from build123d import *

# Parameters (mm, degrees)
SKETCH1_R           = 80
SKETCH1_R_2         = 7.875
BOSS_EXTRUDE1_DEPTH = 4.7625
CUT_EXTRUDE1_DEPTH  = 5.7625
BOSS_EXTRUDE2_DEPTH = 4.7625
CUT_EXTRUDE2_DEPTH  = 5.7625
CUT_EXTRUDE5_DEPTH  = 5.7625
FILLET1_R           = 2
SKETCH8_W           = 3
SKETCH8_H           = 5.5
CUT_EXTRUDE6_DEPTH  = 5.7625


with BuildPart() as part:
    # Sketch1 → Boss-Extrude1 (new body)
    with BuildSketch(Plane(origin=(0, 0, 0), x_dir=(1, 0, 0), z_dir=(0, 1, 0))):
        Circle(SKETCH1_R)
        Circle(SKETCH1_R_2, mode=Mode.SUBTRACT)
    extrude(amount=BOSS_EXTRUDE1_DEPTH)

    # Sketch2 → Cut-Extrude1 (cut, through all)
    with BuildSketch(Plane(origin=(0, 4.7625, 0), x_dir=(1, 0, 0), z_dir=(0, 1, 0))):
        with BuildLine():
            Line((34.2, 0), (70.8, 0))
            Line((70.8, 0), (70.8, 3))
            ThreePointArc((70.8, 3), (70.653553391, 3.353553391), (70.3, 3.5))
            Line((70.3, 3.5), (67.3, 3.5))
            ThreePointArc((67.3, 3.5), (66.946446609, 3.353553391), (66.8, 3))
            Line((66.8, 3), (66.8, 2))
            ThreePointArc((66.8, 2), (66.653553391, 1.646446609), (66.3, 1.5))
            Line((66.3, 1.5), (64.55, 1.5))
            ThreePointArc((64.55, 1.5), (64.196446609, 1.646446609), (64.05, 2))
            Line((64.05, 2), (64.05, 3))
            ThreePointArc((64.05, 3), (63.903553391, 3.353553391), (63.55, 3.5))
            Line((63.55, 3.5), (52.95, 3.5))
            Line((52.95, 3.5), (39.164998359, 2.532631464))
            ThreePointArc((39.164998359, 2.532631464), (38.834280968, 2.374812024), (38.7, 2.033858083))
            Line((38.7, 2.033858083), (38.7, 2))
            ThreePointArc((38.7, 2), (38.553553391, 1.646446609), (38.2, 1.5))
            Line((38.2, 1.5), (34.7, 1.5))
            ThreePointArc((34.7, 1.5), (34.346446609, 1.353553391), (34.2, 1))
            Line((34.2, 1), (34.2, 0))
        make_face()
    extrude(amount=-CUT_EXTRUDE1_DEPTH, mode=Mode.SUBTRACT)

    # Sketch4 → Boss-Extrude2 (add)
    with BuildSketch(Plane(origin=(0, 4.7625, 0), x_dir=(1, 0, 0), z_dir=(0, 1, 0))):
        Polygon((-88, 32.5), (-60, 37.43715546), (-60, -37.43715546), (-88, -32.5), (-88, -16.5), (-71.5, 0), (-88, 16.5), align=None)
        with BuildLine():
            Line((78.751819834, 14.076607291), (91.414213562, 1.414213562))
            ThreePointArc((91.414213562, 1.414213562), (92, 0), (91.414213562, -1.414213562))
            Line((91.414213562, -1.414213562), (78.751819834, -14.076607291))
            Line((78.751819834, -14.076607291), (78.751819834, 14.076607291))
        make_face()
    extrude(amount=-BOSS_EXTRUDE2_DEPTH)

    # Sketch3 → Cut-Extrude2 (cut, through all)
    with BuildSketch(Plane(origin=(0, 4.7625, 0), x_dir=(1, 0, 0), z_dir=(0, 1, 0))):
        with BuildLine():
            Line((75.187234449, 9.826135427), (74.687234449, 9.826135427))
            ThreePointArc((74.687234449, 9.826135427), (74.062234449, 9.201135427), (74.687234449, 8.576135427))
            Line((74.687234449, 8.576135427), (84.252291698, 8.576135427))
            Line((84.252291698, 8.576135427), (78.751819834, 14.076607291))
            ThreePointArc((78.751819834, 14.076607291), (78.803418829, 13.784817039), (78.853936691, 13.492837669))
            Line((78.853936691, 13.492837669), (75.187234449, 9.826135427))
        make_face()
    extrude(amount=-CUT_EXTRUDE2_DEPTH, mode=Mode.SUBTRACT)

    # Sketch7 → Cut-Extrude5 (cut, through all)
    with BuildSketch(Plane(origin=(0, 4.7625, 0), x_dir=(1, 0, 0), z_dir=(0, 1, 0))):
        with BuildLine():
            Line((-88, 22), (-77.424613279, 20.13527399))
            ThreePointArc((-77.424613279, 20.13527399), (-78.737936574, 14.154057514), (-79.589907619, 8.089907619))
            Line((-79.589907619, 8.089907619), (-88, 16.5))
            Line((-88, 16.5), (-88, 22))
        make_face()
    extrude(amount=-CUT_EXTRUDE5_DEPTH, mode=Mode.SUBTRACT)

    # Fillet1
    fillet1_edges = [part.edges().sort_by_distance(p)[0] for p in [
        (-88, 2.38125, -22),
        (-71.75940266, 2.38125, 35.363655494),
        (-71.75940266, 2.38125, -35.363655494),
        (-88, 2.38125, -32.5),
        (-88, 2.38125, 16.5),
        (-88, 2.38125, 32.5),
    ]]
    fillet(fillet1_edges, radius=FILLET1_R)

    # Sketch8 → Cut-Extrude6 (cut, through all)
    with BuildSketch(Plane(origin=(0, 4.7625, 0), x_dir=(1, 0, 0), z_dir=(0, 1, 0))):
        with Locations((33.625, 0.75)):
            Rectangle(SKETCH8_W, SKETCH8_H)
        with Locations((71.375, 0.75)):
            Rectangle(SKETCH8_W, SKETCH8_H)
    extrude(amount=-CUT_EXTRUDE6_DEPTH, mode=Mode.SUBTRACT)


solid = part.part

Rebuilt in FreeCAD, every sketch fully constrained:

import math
import FreeCAD as App
import Part
import Sketcher

V = App.Vector
Q = App.Units.Quantity


def edges_at(feature, points):
    """Names of the edges that pass closest to the given points."""
    edges = feature.Shape.Edges
    near = lambda p: min(range(len(edges)), key=lambda i: edges[i].distToShape(Part.Vertex(*p))[0])
    return sorted({f"Edge{near(p) + 1}" for p in points})


def add_polygon(sketch, points):
    """Adds a closed chain of lines whose ends are joined by coincident constraints."""
    first, n = sketch.GeometryCount, len(points)
    for a, b in zip(points, points[1:] + points[:1]):
        sketch.addGeometry(Part.LineSegment(App.Vector(*a, 0), App.Vector(*b, 0)), False)
    for i in range(n):
        sketch.addConstraint(Sketcher.Constraint("Coincident", first + i, 2, first + (i + 1) % n, 1))

doc = App.newDocument("Part")
body = doc.addObject("PartDesign::Body", "Body")

sketch1 = body.newObject("Sketcher::SketchObject", "Sketch")
sketch1.AttachmentSupport = (doc.getObject("XZ_Plane"), [""])
sketch1.MapMode = "FlatFace"
sketch1.addGeometry([
    Part.Circle(V(0, 0, 0), V(0, 0, 1), 80),
    Part.Circle(V(0, 0, 0), V(0, 0, 1), 7.875),
], False)
sketch1.addConstraint([
    Sketcher.Constraint("Coincident", 0, 3, -1, 1),
    Sketcher.Constraint("Coincident", 1, 3, -1, 1),
    Sketcher.Constraint("Diameter", 0, 160.0),
    Sketcher.Constraint("Diameter", 1, 15.75),
])
pad1 = body.newObject("PartDesign::Pad", "Pad")
pad1.Profile = sketch1
pad1.Length = 4.7625
pad1.Reversed = True

sketch2 = body.newObject("Sketcher::SketchObject", "Sketch001")
sketch2.AttachmentSupport = (doc.getObject("XZ_Plane"), [""])
sketch2.MapMode = "FlatFace"
sketch2.AttachmentOffset = App.Placement(V(0, 0, -4.7625), App.Rotation())
sketch2.addGeometry([
    Part.LineSegment(V(34.2, 0, 0), V(70.8, 0, 0)),
    Part.LineSegment(V(70.8, 0, 0), V(70.8, -3, 0)),
    Part.ArcOfCircle(Part.Circle(V(70.3, -3, 0), V(0, 0, 1), 0.5), math.radians(-90), math.radians(0)),
    Part.LineSegment(V(70.3, -3.5, 0), V(67.3, -3.5, 0)),
    Part.ArcOfCircle(Part.Circle(V(67.3, -3, 0), V(0, 0, 1), 0.5), math.radians(180), math.radians(270)),
    Part.LineSegment(V(66.8, -3, 0), V(66.8, -2, 0)),
    Part.ArcOfCircle(Part.Circle(V(66.3, -2, 0), V(0, 0, 1), 0.5), math.radians(0), math.radians(90)),
    Part.LineSegment(V(66.3, -1.5, 0), V(64.55, -1.5, 0)),
    Part.ArcOfCircle(Part.Circle(V(64.55, -2, 0), V(0, 0, 1), 0.5), math.radians(90), math.radians(180)),
    Part.LineSegment(V(64.05, -2, 0), V(64.05, -3, 0)),
    Part.ArcOfCircle(Part.Circle(V(63.55, -3, 0), V(0, 0, 1), 0.5), math.radians(-90), math.radians(0)),
    Part.LineSegment(V(63.55, -3.5, 0), V(52.95, -3.5, 0)),
    Part.LineSegment(V(52.95, -3.5, 0), V(39.164998, -2.532631, 0)),
    Part.ArcOfCircle(Part.Circle(V(39.2, -2.033858, 0), V(0, 0, 1), 0.5), math.radians(180), math.radians(265.985824)),
    Part.LineSegment(V(38.7, -2.033858, 0), V(38.7, -2, 0)),
    Part.ArcOfCircle(Part.Circle(V(38.2, -2, 0), V(0, 0, 1), 0.5), math.radians(0), math.radians(90)),
    Part.LineSegment(V(38.2, -1.5, 0), V(34.7, -1.5, 0)),
    Part.ArcOfCircle(Part.Circle(V(34.7, -1, 0), V(0, 0, 1), 0.5), math.radians(180), math.radians(270)),
    Part.LineSegment(V(34.2, -1, 0), V(34.2, 0, 0)),
], False)
sketch2.addConstraint([
    Sketcher.Constraint("Coincident", 0, 2, 1, 1),
    Sketcher.Constraint("Tangent", 1, 2, 2, 2),
    Sketcher.Constraint("Tangent", 2, 1, 3, 1),
    Sketcher.Constraint("Tangent", 3, 2, 4, 2),
    Sketcher.Constraint("Tangent", 4, 1, 5, 1),
    Sketcher.Constraint("Tangent", 5, 2, 6, 1),
    Sketcher.Constraint("Tangent", 6, 2, 7, 1),
    Sketcher.Constraint("Tangent", 7, 2, 8, 1),
    Sketcher.Constraint("Tangent", 8, 2, 9, 1),
    Sketcher.Constraint("Tangent", 9, 2, 10, 2),
    Sketcher.Constraint("Tangent", 10, 1, 11, 1),
    Sketcher.Constraint("Coincident", 11, 2, 12, 1),
    Sketcher.Constraint("Tangent", 12, 2, 13, 2),
    Sketcher.Constraint("Tangent", 13, 1, 14, 1),
    Sketcher.Constraint("Tangent", 14, 2, 15, 1),
    Sketcher.Constraint("Tangent", 15, 2, 16, 1),
    Sketcher.Constraint("Tangent", 16, 2, 17, 2),
    Sketcher.Constraint("Tangent", 17, 1, 18, 1),
    Sketcher.Constraint("Coincident", 18, 2, 0, 1),
    Sketcher.Constraint("Horizontal", 0),
    Sketcher.Constraint("Vertical", 1),
    Sketcher.Constraint("Horizontal", 3),
    Sketcher.Constraint("Vertical", 5),
    Sketcher.Constraint("Horizontal", 7),
    Sketcher.Constraint("Vertical", 9),
    Sketcher.Constraint("Horizontal", 11),
    Sketcher.Constraint("Vertical", 14),
    Sketcher.Constraint("Horizontal", 16),
    Sketcher.Constraint("Vertical", 18),
    Sketcher.Constraint("Equal", 2, 4),
    Sketcher.Constraint("Equal", 4, 6),
    Sketcher.Constraint("Equal", 6, 8),
    Sketcher.Constraint("Equal", 8, 10),
    Sketcher.Constraint("Equal", 10, 13),
    Sketcher.Constraint("Equal", 13, 15),
    Sketcher.Constraint("Equal", 15, 17),
    Sketcher.Constraint("PointOnObject", 0, 2, -1),
    Sketcher.Constraint("Horizontal", 4, 3, 10, 3),
    Sketcher.Constraint("Horizontal", 8, 3, 15, 3),
    Sketcher.Constraint("Equal", 3, 1),
    Sketcher.Constraint("Equal", 9, 18),
    Sketcher.Constraint("Radius", 2, 0.5),
    Sketcher.Constraint("DistanceX", 3, 2, 3, 1, 3.0),
    Sketcher.Constraint("DistanceX", 0, 1, 0, 2, 36.6),
    Sketcher.Constraint("DistanceX", 11, 2, 11, 1, 10.6),
    Sketcher.Constraint("DistanceX", 16, 2, 16, 1, 3.5),
    Sketcher.Constraint("DistanceX", 7, 2, 7, 1, 1.75),
    Sketcher.Constraint("DistanceX", -1, 1, 2, 3, 70.3),
    Sketcher.Constraint("DistanceX", -1, 1, 12, 2, 39.164998),
])
pocket1 = body.newObject("PartDesign::Pocket", "Pocket")
pocket1.Profile = sketch2
pocket1.Type = "ThroughAll"
pocket1.Reversed = True

sketch3 = body.newObject("Sketcher::SketchObject", "Sketch002")
sketch3.AttachmentSupport = (doc.getObject("XZ_Plane"), [""])
sketch3.MapMode = "FlatFace"
sketch3.AttachmentOffset = App.Placement(V(0, 0, -4.7625), App.Rotation())
add_polygon(sketch3, [(-60, -37.437155), (-88, -32.5), (-88, -16.5), (-71.5, 0), (-88, 16.5), (-88, 32.5), (-60, 37.437155)])
sketch3.addGeometry(Part.LineSegment(V(91.414214, -1.414214, 0), V(78.75182, -14.076607, 0)), False)
sketch3.addGeometry(Part.LineSegment(V(78.75182, -14.076607, 0), V(78.75182, 14.076607, 0)), False)
sketch3.addGeometry(Part.LineSegment(V(78.75182, 14.076607, 0), V(91.414214, 1.414214, 0)), False)
sketch3.addGeometry(Part.ArcOfCircle(Part.Circle(V(90, 0, 0), V(0, 0, 1), 2), math.radians(-45), math.radians(45)), False)
sketch3.addConstraint([
    Sketcher.Constraint("Coincident", 7, 2, 8, 1),
    Sketcher.Constraint("Coincident", 8, 2, 9, 1),
    Sketcher.Constraint("Tangent", 9, 2, 10, 2),
    Sketcher.Constraint("Tangent", 10, 1, 7, 1),
    Sketcher.Constraint("Vertical", 1),
    Sketcher.Constraint("Vertical", 4),
    Sketcher.Constraint("Vertical", 6),
    Sketcher.Constraint("Vertical", 8),
    Sketcher.Constraint("Symmetric", 1, 2, 3, 2, -1),
    Sketcher.Constraint("Symmetric", 9, 2, 10, 1, -1),
    Sketcher.Constraint("PointOnObject", 2, 2, -1),
    Sketcher.Constraint("Perpendicular", 2, 3),
    Sketcher.Constraint("Perpendicular", 3, 7),
    Sketcher.Constraint("Equal", 1, 4),
    Sketcher.Constraint("Equal", 0, 5),
    Sketcher.Constraint("Radius", 10, 2.0),
    Sketcher.Constraint("DistanceY", 1, 1, 1, 2, 16.0),
    Sketcher.Constraint("Angle", 0, Q("170 deg")),
    Sketcher.Constraint("DistanceX", -1, 1, 10, 3, 90.0),
    Sketcher.Constraint("DistanceX", 0, 2, -1, 1, 88.0),
    Sketcher.Constraint("DistanceX", 5, 2, -1, 1, 60.0),
    Sketcher.Constraint("DistanceY", 1, 2, 3, 2, 33.0),
    Sketcher.Constraint("Distance", 7, 17.907329),
])
pad2 = body.newObject("PartDesign::Pad", "Pad001")
pad2.Profile = sketch3
pad2.Length = 4.7625

sketch4 = body.newObject("Sketcher::SketchObject", "Sketch003")
sketch4.AttachmentSupport = (doc.getObject("XZ_Plane"), [""])
sketch4.MapMode = "FlatFace"
sketch4.AttachmentOffset = App.Placement(V(0, 0, -4.7625), App.Rotation())
sketch4.addGeometry([
    Part.LineSegment(V(75.187234, -9.826135, 0), V(74.687234, -9.826135, 0)),
    Part.ArcOfCircle(Part.Circle(V(74.687234, -9.201135, 0), V(0, 0, 1), 0.625), math.radians(90), math.radians(270)),
    Part.LineSegment(V(74.687234, -8.576135, 0), V(84.252292, -8.576135, 0)),
    Part.LineSegment(V(84.252292, -8.576135, 0), V(78.75182, -14.076607, 0)),
    Part.ArcOfCircle(Part.Circle(V(-0.000066, 0.000012, 0), V(0, 0, 1), 80.000067), math.radians(-10.134389), math.radians(-9.709945)),
    Part.LineSegment(V(78.853937, -13.492838, 0), V(75.187234, -9.826135, 0)),
], False)
sketch4.addConstraint([
    Sketcher.Constraint("Tangent", 0, 2, 1, 2),
    Sketcher.Constraint("Tangent", 1, 1, 2, 1),
    Sketcher.Constraint("Coincident", 2, 2, 3, 1),
    Sketcher.Constraint("Coincident", 3, 2, 4, 1),
    Sketcher.Constraint("Coincident", 4, 2, 5, 1),
    Sketcher.Constraint("Coincident", 5, 2, 0, 1),
    Sketcher.Constraint("Horizontal", 0),
    Sketcher.Constraint("Horizontal", 2),
    Sketcher.Constraint("Perpendicular", 3, 5),
    Sketcher.Constraint("Angle", 3, Q("-135 deg")),
    Sketcher.Constraint("DistanceX", 0, 2, 0, 1, 0.5),
    Sketcher.Constraint("Radius", 1, 0.625),
    Sketcher.Constraint("Radius", 4, 80.000067),
    Sketcher.Constraint("Distance", 5, 5.1855),
    Sketcher.Constraint("DistanceX", 4, 3, 1, 3, 74.6873),
    Sketcher.Constraint("Distance", 3, 7.778842),
    Sketcher.Constraint("DistanceX", -1, 1, 2, 2, 84.252292),
    Sketcher.Constraint("DistanceY", 1, 3, -1, 1, 9.201135),
])
pocket2 = body.newObject("PartDesign::Pocket", "Pocket001")
pocket2.Profile = sketch4
pocket2.Type = "ThroughAll"
pocket2.Reversed = True

sketch5 = body.newObject("Sketcher::SketchObject", "Sketch004")
sketch5.AttachmentSupport = (doc.getObject("XZ_Plane"), [""])
sketch5.MapMode = "FlatFace"
sketch5.AttachmentOffset = App.Placement(V(0, 0, -4.7625), App.Rotation())
sketch5.addGeometry([
    Part.LineSegment(V(-77.424613, -20.135274, 0), V(-88, -22, 0)),
    Part.LineSegment(V(-88, -22, 0), V(-88, -16.5, 0)),
    Part.LineSegment(V(-88, -16.5, 0), V(-79.589908, -8.089908, 0)),
    Part.ArcOfCircle(Part.Circle(V(0, 0, 0), V(0, 0, 1), 80), math.radians(-174.19611), math.radians(-165.422405)),
], False)
sketch5.addConstraint([
    Sketcher.Constraint("Coincident", 0, 2, 1, 1),
    Sketcher.Constraint("Coincident", 1, 2, 2, 1),
    Sketcher.Constraint("Coincident", 2, 2, 3, 1),
    Sketcher.Constraint("Coincident", 3, 2, 0, 1),
    Sketcher.Constraint("Vertical", 1),
    Sketcher.Constraint("Coincident", 3, 3, -1, 1),
    Sketcher.Constraint("Radius", 3, 80.0),
    Sketcher.Constraint("Angle", 0, Q("-170 deg")),
    Sketcher.Constraint("Angle", 2, Q("45 deg")),
    Sketcher.Constraint("DistanceY", 1, 1, 1, 2, 5.5),
    Sketcher.Constraint("DistanceX", 0, 2, -1, 1, 88.0),
    Sketcher.Constraint("DistanceY", 0, 2, -1, 1, 22.0),
])
pocket3 = body.newObject("PartDesign::Pocket", "Pocket002")
pocket3.Profile = sketch5
pocket3.Type = "ThroughAll"
pocket3.Reversed = True
doc.recompute()

fillet = body.newObject("PartDesign::Fillet", "Fillet")
fillet.Base = (pocket3, edges_at(pocket3, [
    (-88, 2.381, -22),
    (-71.759, 2.381, 35.364),
    (-71.759, 2.381, -35.364),
    (-88, 2.381, -32.5),
    (-88, 2.381, 16.5),
    (-88, 2.381, 32.5),
]))
fillet.Radius = 2

sketch6 = body.newObject("Sketcher::SketchObject", "Sketch005")
sketch6.AttachmentSupport = (doc.getObject("XZ_Plane"), [""])
sketch6.MapMode = "FlatFace"
sketch6.AttachmentOffset = App.Placement(V(0, 0, -4.7625), App.Rotation())
add_polygon(sketch6, [(32.125, -3.5), (32.125, 2), (35.125, 2), (35.125, -3.5)])
add_polygon(sketch6, [(69.875, -3.5), (69.875, 2), (72.875, 2), (72.875, -3.5)])
sketch6.addConstraint([
    Sketcher.Constraint("Vertical", 0),
    Sketcher.Constraint("Horizontal", 1),
    Sketcher.Constraint("Vertical", 2),
    Sketcher.Constraint("Horizontal", 3),
    Sketcher.Constraint("Vertical", 4),
    Sketcher.Constraint("Horizontal", 5),
    Sketcher.Constraint("Vertical", 6),
    Sketcher.Constraint("Horizontal", 7),
    Sketcher.Constraint("Horizontal", 1, 2, 4, 2),
    Sketcher.Constraint("Horizontal", 3, 2, 6, 2),
    Sketcher.Constraint("Equal", 3, 5),
    Sketcher.Constraint("DistanceX", 1, 1, 1, 2, 3.0),
    Sketcher.Constraint("DistanceY", 0, 1, 0, 2, 5.5),
    Sketcher.Constraint("DistanceY", -1, 1, 0, 2, 2.0),
    Sketcher.Constraint("DistanceX", 1, 2, 4, 2, 34.75),
    Sketcher.Constraint("DistanceX", -1, 1, 0, 2, 32.125),
])
pocket4 = body.newObject("PartDesign::Pocket", "Pocket003")
pocket4.Profile = sketch6
pocket4.Type = "ThroughAll"
pocket4.Reversed = True

doc.recompute()
